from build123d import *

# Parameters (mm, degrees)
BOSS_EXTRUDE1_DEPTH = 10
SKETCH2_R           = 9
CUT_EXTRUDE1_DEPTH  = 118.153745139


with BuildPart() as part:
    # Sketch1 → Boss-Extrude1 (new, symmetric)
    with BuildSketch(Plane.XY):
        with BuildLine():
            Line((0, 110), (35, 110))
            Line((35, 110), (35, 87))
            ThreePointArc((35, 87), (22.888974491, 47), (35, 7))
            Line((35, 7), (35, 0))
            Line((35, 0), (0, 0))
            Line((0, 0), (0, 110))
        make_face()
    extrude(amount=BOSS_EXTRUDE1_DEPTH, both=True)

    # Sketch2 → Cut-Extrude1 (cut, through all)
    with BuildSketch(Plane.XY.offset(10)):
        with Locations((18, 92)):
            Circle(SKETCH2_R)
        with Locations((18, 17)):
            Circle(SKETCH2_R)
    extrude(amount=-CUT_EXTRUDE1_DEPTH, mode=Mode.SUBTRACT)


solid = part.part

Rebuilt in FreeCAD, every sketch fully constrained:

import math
import FreeCAD as App
import Part
import Sketcher

V = App.Vector

doc = App.newDocument("Part")
body = doc.addObject("PartDesign::Body", "Body")

sketch1 = body.newObject("Sketcher::SketchObject", "Sketch")
sketch1.AttachmentSupport = (doc.getObject("XY_Plane"), [""])
sketch1.MapMode = "FlatFace"
sketch1.addGeometry(Part.LineSegment(V(35, 110, 0), V(0, 110, 0)), False)
sketch1.addGeometry(Part.LineSegment(V(0, 110, 0), V(0, 0, 0)), False)
sketch1.addGeometry(Part.LineSegment(V(0, 0, 0), V(35, 0, 0)), False)
sketch1.addGeometry(Part.LineSegment(V(35, 0, 0), V(35, 7, 0)), False)
sketch1.addGeometry(Part.ArcOfCircle(Part.Circle(V(95, 47, 0), V(0, 0, 1), 72.111026), math.radians(146.309932), math.radians(213.690068)), False)
sketch1.addGeometry(Part.LineSegment(V(35, 87, 0), V(35, 110, 0)), False)
sketch1.addConstraint(Sketcher.Constraint("Coincident", 0, 2, 1, 1))
sketch1.addConstraint(Sketcher.Constraint("Coincident", 1, 2, 2, 1))
sketch1.addConstraint(Sketcher.Constraint("Coincident", 2, 2, 3, 1))
sketch1.addConstraint(Sketcher.Constraint("Coincident", 3, 2, 4, 2))
sketch1.addConstraint(Sketcher.Constraint("Coincident", 4, 1, 5, 1))
sketch1.addConstraint(Sketcher.Constraint("Coincident", 5, 2, 0, 1))
sketch1.addConstraint(Sketcher.Constraint("Horizontal", 0))
sketch1.addConstraint(Sketcher.Constraint("Vertical", 1))
sketch1.addConstraint(Sketcher.Constraint("Horizontal", 2))
sketch1.addConstraint(Sketcher.Constraint("Vertical", 3))
sketch1.addConstraint(Sketcher.Constraint("Vertical", 5))
sketch1.addConstraint(Sketcher.Constraint("Coincident", 1, 2, -1, 1))
sketch1.addConstraint(Sketcher.Constraint("Vertical", 3, 2, 4, 1))
sketch1.addConstraint(Sketcher.Constraint("DistanceX", 0, 2, 0, 1, 35.0))
sketch1.addConstraint(Sketcher.Constraint("DistanceY", 1, 2, 1, 1, 110.0))
sketch1.addConstraint(Sketcher.Constraint("DistanceY", 3, 1, 3, 2, 7.0))
sketch1.addConstraint(Sketcher.Constraint("DistanceY", 5, 1, 5, 2, 23.0))
sketch1.addConstraint(Sketcher.Constraint("DistanceX", -1, 1, 4, 3, 95.0))
pad1 = body.newObject("PartDesign::Pad", "Pad")
pad1.Profile = sketch1
pad1.Length = 20
pad1.Midplane = True

sketch2 = body.newObject("Sketcher::SketchObject", "Sketch001")
sketch2.AttachmentSupport = (doc.getObject("XY_Plane"), [""])
sketch2.MapMode = "FlatFace"
sketch2.AttachmentOffset = App.Placement(V(0, 0, 10), App.Rotation())
sketch2.addGeometry(Part.Circle(V(18, 92, 0), V(0, 0, 1), 9), False)
sketch2.addGeometry(Part.Circle(V(18, 17, 0), V(0, 0, 1), 9), False)
sketch2.addConstraint(Sketcher.Constraint("Equal", 0, 1))
sketch2.addConstraint(Sketcher.Constraint("Vertical", 0, 3, 1, 3))
sketch2.addConstraint(Sketcher.Constraint("Diameter", 0, 18.0))
sketch2.addConstraint(Sketcher.Constraint("DistanceX", -1, 1, 0, 3, 18.0))
sketch2.addConstraint(Sketcher.Constraint("DistanceY", -1, 1, 0, 3, 92.0))
sketch2.addConstraint(Sketcher.Constraint("DistanceY", -1, 1, 1, 3, 17.0))
pocket1 = body.newObject("PartDesign::Pocket", "Pocket")
pocket1.Profile = sketch2
pocket1.Type = "ThroughAll"

doc.recompute()
